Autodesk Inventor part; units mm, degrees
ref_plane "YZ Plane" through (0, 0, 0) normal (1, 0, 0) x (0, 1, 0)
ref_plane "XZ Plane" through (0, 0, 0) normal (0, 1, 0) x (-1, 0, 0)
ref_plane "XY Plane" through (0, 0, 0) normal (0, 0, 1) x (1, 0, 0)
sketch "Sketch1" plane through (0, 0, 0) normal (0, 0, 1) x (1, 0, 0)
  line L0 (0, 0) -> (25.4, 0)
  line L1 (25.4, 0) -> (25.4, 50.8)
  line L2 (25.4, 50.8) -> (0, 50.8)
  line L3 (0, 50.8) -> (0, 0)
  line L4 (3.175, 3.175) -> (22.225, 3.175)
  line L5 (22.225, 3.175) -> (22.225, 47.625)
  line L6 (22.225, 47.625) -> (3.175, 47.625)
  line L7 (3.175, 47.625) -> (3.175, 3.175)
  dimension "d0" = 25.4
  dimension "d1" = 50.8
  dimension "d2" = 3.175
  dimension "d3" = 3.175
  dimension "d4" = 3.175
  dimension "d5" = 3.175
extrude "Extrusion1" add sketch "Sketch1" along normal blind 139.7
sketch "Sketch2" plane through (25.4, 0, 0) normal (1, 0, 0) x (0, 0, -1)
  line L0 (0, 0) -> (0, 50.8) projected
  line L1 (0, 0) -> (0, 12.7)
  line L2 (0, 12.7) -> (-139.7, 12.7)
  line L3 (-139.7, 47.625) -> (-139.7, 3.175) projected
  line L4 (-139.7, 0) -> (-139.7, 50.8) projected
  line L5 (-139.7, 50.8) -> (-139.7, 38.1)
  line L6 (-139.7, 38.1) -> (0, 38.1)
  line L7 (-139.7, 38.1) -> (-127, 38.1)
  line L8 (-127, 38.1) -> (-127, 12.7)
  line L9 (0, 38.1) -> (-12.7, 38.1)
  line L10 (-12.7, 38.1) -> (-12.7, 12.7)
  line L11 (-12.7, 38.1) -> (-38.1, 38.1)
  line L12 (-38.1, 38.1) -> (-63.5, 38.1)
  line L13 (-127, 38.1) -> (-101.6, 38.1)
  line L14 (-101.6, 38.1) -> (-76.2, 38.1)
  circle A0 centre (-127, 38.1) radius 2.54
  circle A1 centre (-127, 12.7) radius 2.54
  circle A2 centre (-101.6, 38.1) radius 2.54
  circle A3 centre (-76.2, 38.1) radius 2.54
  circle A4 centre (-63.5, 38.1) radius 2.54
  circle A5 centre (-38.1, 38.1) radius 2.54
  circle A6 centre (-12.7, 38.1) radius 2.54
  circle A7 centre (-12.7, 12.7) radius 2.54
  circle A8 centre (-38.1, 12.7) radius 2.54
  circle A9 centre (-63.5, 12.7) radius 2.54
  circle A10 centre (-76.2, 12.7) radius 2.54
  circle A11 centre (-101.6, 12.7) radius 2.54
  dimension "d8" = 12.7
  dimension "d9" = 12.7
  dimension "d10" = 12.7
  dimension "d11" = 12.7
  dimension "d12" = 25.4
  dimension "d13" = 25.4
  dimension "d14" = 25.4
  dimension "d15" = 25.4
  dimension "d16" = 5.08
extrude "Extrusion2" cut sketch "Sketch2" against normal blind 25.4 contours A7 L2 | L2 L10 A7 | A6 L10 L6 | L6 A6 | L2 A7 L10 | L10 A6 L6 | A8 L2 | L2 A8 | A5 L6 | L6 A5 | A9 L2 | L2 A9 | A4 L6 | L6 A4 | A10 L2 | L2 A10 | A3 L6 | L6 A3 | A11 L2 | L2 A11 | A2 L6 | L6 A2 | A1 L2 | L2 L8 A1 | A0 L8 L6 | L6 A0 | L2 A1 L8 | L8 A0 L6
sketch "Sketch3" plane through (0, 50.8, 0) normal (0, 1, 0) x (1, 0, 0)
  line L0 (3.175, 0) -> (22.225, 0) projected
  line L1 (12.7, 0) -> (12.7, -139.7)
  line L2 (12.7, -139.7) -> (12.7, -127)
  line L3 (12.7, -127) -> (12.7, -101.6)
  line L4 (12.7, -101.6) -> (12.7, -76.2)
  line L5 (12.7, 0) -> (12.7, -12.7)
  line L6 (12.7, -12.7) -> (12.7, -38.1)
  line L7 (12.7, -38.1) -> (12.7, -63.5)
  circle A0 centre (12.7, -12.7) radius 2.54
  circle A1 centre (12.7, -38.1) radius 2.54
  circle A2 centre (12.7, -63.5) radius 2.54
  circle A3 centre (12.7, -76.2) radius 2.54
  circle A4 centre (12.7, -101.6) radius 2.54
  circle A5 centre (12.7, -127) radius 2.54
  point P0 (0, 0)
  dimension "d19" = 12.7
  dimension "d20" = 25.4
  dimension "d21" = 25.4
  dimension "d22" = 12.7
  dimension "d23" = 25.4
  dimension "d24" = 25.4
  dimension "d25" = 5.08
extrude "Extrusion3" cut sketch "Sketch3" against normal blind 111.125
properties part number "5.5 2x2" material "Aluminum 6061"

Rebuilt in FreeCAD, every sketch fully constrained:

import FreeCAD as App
import Part
import Sketcher
Q = App.Units.Quantity


def add_polygon(sketch, points):
    """Adds a closed chain of lines whose ends are joined by coincident constraints."""
    first, n = sketch.GeometryCount, len(points)
    for a, b in zip(points, points[1:] + points[:1]):
        sketch.addGeometry(Part.LineSegment(App.Vector(*a, 0), App.Vector(*b, 0)), False)
    for i in range(n):
        sketch.addConstraint(Sketcher.Constraint("Coincident", first + i, 2, first + (i + 1) % n, 1))

doc = App.newDocument("Part")
body = doc.addObject("PartDesign::Body", "Body")

sketch1 = doc.addObject("Sketcher::SketchObject", "Sketch")
body.addObject(sketch1)
sketch1.AttachmentSupport = (doc.XY_Plane, [""])
sketch1.MapMode = "FlatFace"
add_polygon(sketch1, [(0, 51), (0, 0), (25, 0), (25, 51)])
add_polygon(sketch1, [(22, 3), (3, 3), (3, 48), (22, 48)])
sketch1.addConstraint(Sketcher.Constraint("Vertical", 0))
sketch1.addConstraint(Sketcher.Constraint("Horizontal", 1))
sketch1.addConstraint(Sketcher.Constraint("Vertical", 2))
sketch1.addConstraint(Sketcher.Constraint("Horizontal", 3))
sketch1.addConstraint(Sketcher.Constraint("Horizontal", 4))
sketch1.addConstraint(Sketcher.Constraint("Vertical", 5))
sketch1.addConstraint(Sketcher.Constraint("Horizontal", 6))
sketch1.addConstraint(Sketcher.Constraint("Vertical", 7))
sketch1.addConstraint(Sketcher.Constraint("Coincident", 0, 2, -1, 1))
sketch1.addConstraint(Sketcher.Constraint("DistanceX", 1, 1, 1, 2, Q("1 in")))
sketch1.addConstraint(Sketcher.Constraint("DistanceY", 0, 2, 0, 1, Q("2 in")))
sketch1.addConstraint(Sketcher.Constraint("DistanceX", -1, 1, 4, 2, Q("0.125 in")))
sketch1.addConstraint(Sketcher.Constraint("DistanceY", -1, 1, 4, 2, Q("0.125 in")))
sketch1.addConstraint(Sketcher.Constraint("DistanceY", 5, 2, 3, 2, Q("0.125 in")))
sketch1.addConstraint(Sketcher.Constraint("DistanceX", 6, 2, 2, 2, Q("0.125 in")))
pad1 = doc.addObject("PartDesign::Pad", "Pad")
body.addObject(pad1)
pad1.Profile = sketch1
pad1.Length = Q("5.5 in")

sketch2 = doc.addObject("Sketcher::SketchObject", "Sketch001")
body.addObject(sketch2)
sketch2.AttachmentSupport = (doc.YZ_Plane, [""])
sketch2.MapMode = "FlatFace"
sketch2.AttachmentOffset = App.Placement(App.Vector(0, 0, 1 * 25.4), App.Rotation())
sketch2.addGeometry(Part.Circle(App.Vector(12.7, 12.7, 0), App.Vector(0, 0, 1), 2.5), False)
sketch2.addGeometry(Part.Circle(App.Vector(38.1, 12.7, 0), App.Vector(0, 0, 1), 2.5), False)
sketch2.addGeometry(Part.Circle(App.Vector(12.7, 38.1, 0), App.Vector(0, 0, 1), 2.5), False)
sketch2.addGeometry(Part.Circle(App.Vector(38.1, 38.1, 0), App.Vector(0, 0, 1), 2.5), False)
sketch2.addGeometry(Part.Circle(App.Vector(12.7, 63.5, 0), App.Vector(0, 0, 1), 2.5), False)
sketch2.addGeometry(Part.Circle(App.Vector(38.1, 63.5, 0), App.Vector(0, 0, 1), 2.5), False)
sketch2.addGeometry(Part.Circle(App.Vector(12.7, 76.2, 0), App.Vector(0, 0, 1), 2.5), False)
sketch2.addGeometry(Part.Circle(App.Vector(38.1, 76.2, 0), App.Vector(0, 0, 1), 2.5), False)
sketch2.addGeometry(Part.Circle(App.Vector(12.7, 101.6, 0), App.Vector(0, 0, 1), 2.5), False)
sketch2.addGeometry(Part.Circle(App.Vector(38.1, 101.6, 0), App.Vector(0, 0, 1), 2.5), False)
sketch2.addGeometry(Part.Circle(App.Vector(12.7, 127, 0), App.Vector(0, 0, 1), 2.5), False)
sketch2.addGeometry(Part.Circle(App.Vector(38.1, 127, 0), App.Vector(0, 0, 1), 2.5), False)
sketch2.addConstraint(Sketcher.Constraint("Equal", 0, 1))
sketch2.addConstraint(Sketcher.Constraint("Equal", 1, 2))
sketch2.addConstraint(Sketcher.Constraint("Equal", 2, 3))
sketch2.addConstraint(Sketcher.Constraint("Equal", 3, 4))
sketch2.addConstraint(Sketcher.Constraint("Equal", 4, 5))
sketch2.addConstraint(Sketcher.Constraint("Equal", 5, 6))
sketch2.addConstraint(Sketcher.Constraint("Equal", 6, 7))
sketch2.addConstraint(Sketcher.Constraint("Equal", 7, 8))
sketch2.addConstraint(Sketcher.Constraint("Equal", 8, 9))
sketch2.addConstraint(Sketcher.Constraint("Equal", 9, 10))
sketch2.addConstraint(Sketcher.Constraint("Equal", 10, 11))
sketch2.addConstraint(Sketcher.Constraint("Horizontal", 0, 3, 1, 3))
sketch2.addConstraint(Sketcher.Constraint("Horizontal", 2, 3, 3, 3))
sketch2.addConstraint(Sketcher.Constraint("Horizontal", 4, 3, 5, 3))
sketch2.addConstraint(Sketcher.Constraint("Horizontal", 6, 3, 7, 3))
sketch2.addConstraint(Sketcher.Constraint("Horizontal", 8, 3, 9, 3))
sketch2.addConstraint(Sketcher.Constraint("Horizontal", 10, 3, 11, 3))
sketch2.addConstraint(Sketcher.Constraint("Vertical", 0, 3, 2, 3))
sketch2.addConstraint(Sketcher.Constraint("Vertical", 1, 3, 3, 3))
sketch2.addConstraint(Sketcher.Constraint("Vertical", 2, 3, 4, 3))
sketch2.addConstraint(Sketcher.Constraint("Vertical", 3, 3, 5, 3))
sketch2.addConstraint(Sketcher.Constraint("Vertical", 4, 3, 6, 3))
sketch2.addConstraint(Sketcher.Constraint("Vertical", 5, 3, 7, 3))
sketch2.addConstraint(Sketcher.Constraint("Vertical", 6, 3, 8, 3))
sketch2.addConstraint(Sketcher.Constraint("Vertical", 7, 3, 9, 3))
sketch2.addConstraint(Sketcher.Constraint("Vertical", 8, 3, 10, 3))
sketch2.addConstraint(Sketcher.Constraint("Vertical", 9, 3, 11, 3))
sketch2.addConstraint(Sketcher.Constraint("Diameter", 0, Q("0.2 in")))
sketch2.addConstraint(Sketcher.Constraint("DistanceX", 0, 3, 1, 3, Q("1 in")))
sketch2.addConstraint(Sketcher.Constraint("DistanceY", 0, 3, 2, 3, Q("1 in")))
sketch2.addConstraint(Sketcher.Constraint("DistanceY", 2, 3, 4, 3, Q("1 in")))
sketch2.addConstraint(Sketcher.Constraint("DistanceY", 6, 3, 8, 3, Q("1 in")))
sketch2.addConstraint(Sketcher.Constraint("DistanceY", 8, 3, 10, 3, Q("1 in")))
sketch2.addConstraint(Sketcher.Constraint("DistanceX", -1, 1, 0, 3, Q("0.5 in")))
sketch2.addConstraint(Sketcher.Constraint("DistanceY", -1, 1, 0, 3, Q("0.5 in")))
sketch2.addConstraint(Sketcher.Constraint("DistanceY", 4, 3, 6, 3, Q("0.5 in")))
pocket1 = doc.addObject("PartDesign::Pocket", "Pocket")
body.addObject(pocket1)
pocket1.Profile = sketch2
pocket1.Length = Q("1 in")

sketch3 = doc.addObject("Sketcher::SketchObject", "Sketch002")
body.addObject(sketch3)
sketch3.AttachmentSupport = (doc.XZ_Plane, [""])
sketch3.MapMode = "FlatFace"
sketch3.AttachmentOffset = App.Placement(App.Vector(0, 0, -2 * 25.4), App.Rotation())
sketch3.addGeometry(Part.Circle(App.Vector(12.7, 12.7, 0), App.Vector(0, 0, 1), 2.5), False)
sketch3.addGeometry(Part.Circle(App.Vector(12.7, 127, 0), App.Vector(0, 0, 1), 2.5), False)
sketch3.addGeometry(Part.Circle(App.Vector(12.7, 101.6, 0), App.Vector(0, 0, 1), 2.5), False)
sketch3.addGeometry(Part.Circle(App.Vector(12.7, 76.2, 0), App.Vector(0, 0, 1), 2.5), False)
sketch3.addGeometry(Part.Circle(App.Vector(12.7, 63.5, 0), App.Vector(0, 0, 1), 2.5), False)
sketch3.addGeometry(Part.Circle(App.Vector(12.7, 38.1, 0), App.Vector(0, 0, 1), 2.5), False)
sketch3.addConstraint(Sketcher.Constraint("Equal", 0, 1))
sketch3.addConstraint(Sketcher.Constraint("Equal", 1, 2))
sketch3.addConstraint(Sketcher.Constraint("Equal", 2, 3))
sketch3.addConstraint(Sketcher.Constraint("Equal", 3, 4))
sketch3.addConstraint(Sketcher.Constraint("Equal", 4, 5))
sketch3.addConstraint(Sketcher.Constraint("Vertical", 0, 3, 1, 3))
sketch3.addConstraint(Sketcher.Constraint("Vertical", 1, 3, 2, 3))
sketch3.addConstraint(Sketcher.Constraint("Vertical", 2, 3, 3, 3))
sketch3.addConstraint(Sketcher.Constraint("Vertical", 3, 3, 4, 3))
sketch3.addConstraint(Sketcher.Constraint("Vertical", 4, 3, 5, 3))
sketch3.addConstraint(Sketcher.Constraint("Diameter", 0, Q("0.2 in")))
sketch3.addConstraint(Sketcher.Constraint("DistanceY", 2, 3, 1, 3, Q("1 in")))
sketch3.addConstraint(Sketcher.Constraint("DistanceY", 3, 3, 2, 3, Q("1 in")))
sketch3.addConstraint(Sketcher.Constraint("DistanceY", 5, 3, 4, 3, Q("1 in")))
sketch3.addConstraint(Sketcher.Constraint("DistanceY", 0, 3, 5, 3, Q("1 in")))
sketch3.addConstraint(Sketcher.Constraint("DistanceX", -1, 1, 0, 3, Q("0.5 in")))
sketch3.addConstraint(Sketcher.Constraint("DistanceY", -1, 1, 0, 3, Q("0.5 in")))
sketch3.addConstraint(Sketcher.Constraint("DistanceY", 4, 3, 3, 3, Q("0.5 in")))
pocket2 = doc.addObject("PartDesign::Pocket", "Pocket001")
body.addObject(pocket2)
pocket2.Profile = sketch3
pocket2.Length = Q("4.375 in")
pocket2.Reversed = True

doc.recompute()
